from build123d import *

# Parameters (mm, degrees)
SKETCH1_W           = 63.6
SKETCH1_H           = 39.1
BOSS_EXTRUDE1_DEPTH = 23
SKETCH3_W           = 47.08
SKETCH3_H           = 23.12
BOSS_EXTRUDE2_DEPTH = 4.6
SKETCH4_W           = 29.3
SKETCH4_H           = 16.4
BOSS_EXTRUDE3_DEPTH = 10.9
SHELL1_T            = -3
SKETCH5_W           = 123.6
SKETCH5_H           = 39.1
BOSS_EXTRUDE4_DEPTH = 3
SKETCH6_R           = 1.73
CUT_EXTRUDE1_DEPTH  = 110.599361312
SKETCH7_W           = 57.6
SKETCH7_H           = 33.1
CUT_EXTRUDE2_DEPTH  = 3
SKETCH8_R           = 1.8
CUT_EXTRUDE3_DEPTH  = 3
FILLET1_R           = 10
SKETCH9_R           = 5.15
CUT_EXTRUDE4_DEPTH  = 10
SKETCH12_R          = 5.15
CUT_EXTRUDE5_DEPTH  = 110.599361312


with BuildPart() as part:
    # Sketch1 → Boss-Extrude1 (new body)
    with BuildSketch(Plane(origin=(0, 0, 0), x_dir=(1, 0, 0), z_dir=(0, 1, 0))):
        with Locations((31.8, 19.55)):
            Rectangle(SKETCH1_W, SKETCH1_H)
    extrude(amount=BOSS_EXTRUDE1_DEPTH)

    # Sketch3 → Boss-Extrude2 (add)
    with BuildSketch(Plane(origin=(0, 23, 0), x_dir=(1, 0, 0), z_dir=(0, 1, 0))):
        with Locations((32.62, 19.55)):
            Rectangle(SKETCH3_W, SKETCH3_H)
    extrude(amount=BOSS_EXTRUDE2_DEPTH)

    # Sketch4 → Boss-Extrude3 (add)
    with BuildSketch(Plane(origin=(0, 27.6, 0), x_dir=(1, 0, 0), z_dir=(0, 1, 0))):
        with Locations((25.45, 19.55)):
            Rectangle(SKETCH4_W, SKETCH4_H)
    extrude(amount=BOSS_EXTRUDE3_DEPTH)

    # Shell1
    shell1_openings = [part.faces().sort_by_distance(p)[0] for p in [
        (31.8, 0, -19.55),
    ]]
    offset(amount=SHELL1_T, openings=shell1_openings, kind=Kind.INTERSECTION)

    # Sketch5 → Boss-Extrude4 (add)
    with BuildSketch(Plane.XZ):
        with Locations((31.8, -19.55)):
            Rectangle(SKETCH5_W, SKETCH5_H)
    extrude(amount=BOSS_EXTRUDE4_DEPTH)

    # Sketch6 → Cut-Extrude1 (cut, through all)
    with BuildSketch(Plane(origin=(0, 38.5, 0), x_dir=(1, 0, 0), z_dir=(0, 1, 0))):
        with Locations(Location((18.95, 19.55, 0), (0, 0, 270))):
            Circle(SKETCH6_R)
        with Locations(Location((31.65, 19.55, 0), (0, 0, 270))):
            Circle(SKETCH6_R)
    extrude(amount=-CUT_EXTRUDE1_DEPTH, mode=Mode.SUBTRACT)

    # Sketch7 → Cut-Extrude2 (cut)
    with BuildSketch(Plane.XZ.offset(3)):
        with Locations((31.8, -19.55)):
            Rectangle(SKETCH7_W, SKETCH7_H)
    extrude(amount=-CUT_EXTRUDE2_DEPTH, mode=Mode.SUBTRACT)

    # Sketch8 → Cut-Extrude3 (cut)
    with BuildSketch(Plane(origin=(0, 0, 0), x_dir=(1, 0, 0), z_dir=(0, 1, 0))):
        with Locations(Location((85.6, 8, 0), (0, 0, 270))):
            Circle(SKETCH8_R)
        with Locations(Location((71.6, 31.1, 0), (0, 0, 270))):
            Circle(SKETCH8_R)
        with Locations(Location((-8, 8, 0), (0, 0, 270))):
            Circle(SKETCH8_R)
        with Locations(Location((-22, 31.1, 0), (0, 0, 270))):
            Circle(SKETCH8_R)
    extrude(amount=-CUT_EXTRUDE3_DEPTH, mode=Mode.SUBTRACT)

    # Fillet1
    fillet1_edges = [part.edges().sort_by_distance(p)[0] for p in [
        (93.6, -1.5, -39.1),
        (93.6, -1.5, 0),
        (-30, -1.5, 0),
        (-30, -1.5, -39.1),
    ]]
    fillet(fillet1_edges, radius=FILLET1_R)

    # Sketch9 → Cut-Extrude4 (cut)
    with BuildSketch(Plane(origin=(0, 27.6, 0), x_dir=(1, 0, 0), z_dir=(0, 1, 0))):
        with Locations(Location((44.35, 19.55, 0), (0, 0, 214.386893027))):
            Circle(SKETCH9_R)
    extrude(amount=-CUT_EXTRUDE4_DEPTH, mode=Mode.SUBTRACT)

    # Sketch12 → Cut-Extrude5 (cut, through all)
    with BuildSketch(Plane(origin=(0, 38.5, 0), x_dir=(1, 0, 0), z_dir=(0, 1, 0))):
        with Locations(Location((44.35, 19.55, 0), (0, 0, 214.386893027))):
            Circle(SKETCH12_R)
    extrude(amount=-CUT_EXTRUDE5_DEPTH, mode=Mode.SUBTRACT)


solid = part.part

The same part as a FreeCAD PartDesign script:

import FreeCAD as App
import Part
import Sketcher
Q = App.Units.Quantity


def edges_at(feature, points):
    """Names of the edges that pass closest to the given points."""
    edges = feature.Shape.Edges
    near = lambda p: min(range(len(edges)), key=lambda i: edges[i].distToShape(Part.Vertex(*p))[0])
    return sorted({f"Edge{near(p) + 1}" for p in points})


def faces_at(feature, points):
    """Names of the faces that lie closest to the given points."""
    faces = feature.Shape.Faces
    near = lambda p: min(range(len(faces)), key=lambda i: faces[i].distToShape(Part.Vertex(*p))[0])
    return sorted({f"Face{near(p) + 1}" for p in points})

doc = App.newDocument("Part")
body = doc.addObject("PartDesign::Body", "Body")

# Sketch on XZ plane
sketch1 = doc.addObject("Sketcher::SketchObject", "Sketch")
body.addObject(sketch1)
sketch1.AttachmentSupport = (doc.XZ_Plane, [""])
sketch1.MapMode = "FlatFace"
sketch1.addGeometry([
    Part.LineSegment(App.Vector(0, -39.1, 0), App.Vector(0, 0, 0)),
    Part.LineSegment(App.Vector(0, 0, 0), App.Vector(63.6, 0, 0)),
    Part.LineSegment(App.Vector(63.6, 0, 0), App.Vector(63.6, -39.1, 0)),
    Part.LineSegment(App.Vector(63.6, -39.1, 0), App.Vector(0, -39.1, 0)),
], False)
sketch1.addConstraint([
    Sketcher.Constraint("Coincident", 0, 2, 1, 1),
    Sketcher.Constraint("Coincident", 1, 2, 2, 1),
    Sketcher.Constraint("Coincident", 2, 2, 3, 1),
    Sketcher.Constraint("Coincident", 3, 2, 0, 1),
    Sketcher.Constraint("Vertical", 0),
    Sketcher.Constraint("Horizontal", 1),
    Sketcher.Constraint("Vertical", 2),
    Sketcher.Constraint("Horizontal", 3),
    Sketcher.Constraint("Coincident", 0, 2, -1, 1),
    Sketcher.Constraint("DistanceX", 1, 1, 1, 2, Q("63.6 mm")),
    Sketcher.Constraint("DistanceY", 0, 1, 0, 2, Q("39.1 mm")),
])
pad1 = doc.addObject("PartDesign::Pad", "Pad")
body.addObject(pad1)
pad1.Profile = sketch1
pad1.Length = 23
pad1.Reversed = True

# Sketch on XZ plane
sketch2 = doc.addObject("Sketcher::SketchObject", "Sketch001")
body.addObject(sketch2)
sketch2.AttachmentSupport = (doc.XZ_Plane, [""])
sketch2.MapMode = "FlatFace"
sketch2.AttachmentOffset = App.Placement(App.Vector(0, 0, -23), App.Rotation())
sketch2.addGeometry([
    Part.LineSegment(App.Vector(9.08, -31.11, 0), App.Vector(9.08, -7.99, 0)),
    Part.LineSegment(App.Vector(9.08, -7.99, 0), App.Vector(56.16, -7.99, 0)),
    Part.LineSegment(App.Vector(56.16, -7.99, 0), App.Vector(56.16, -31.11, 0)),
    Part.LineSegment(App.Vector(56.16, -31.11, 0), App.Vector(9.08, -31.11, 0)),
], False)
sketch2.addConstraint([
    Sketcher.Constraint("Coincident", 0, 2, 1, 1),
    Sketcher.Constraint("Coincident", 1, 2, 2, 1),
    Sketcher.Constraint("Coincident", 2, 2, 3, 1),
    Sketcher.Constraint("Coincident", 3, 2, 0, 1),
    Sketcher.Constraint("Vertical", 0),
    Sketcher.Constraint("Horizontal", 1),
    Sketcher.Constraint("Vertical", 2),
    Sketcher.Constraint("Horizontal", 3),
    Sketcher.Constraint("DistanceX", 1, 1, 1, 2, Q("47.08 mm")),
    Sketcher.Constraint("DistanceY", 0, 1, 0, 2, Q("23.12 mm")),
    Sketcher.Constraint("DistanceX", -1, 1, 0, 2, Q("9.08 mm")),
    Sketcher.Constraint("DistanceY", 0, 2, -1, 1, Q("7.99 mm")),
])
pad2 = doc.addObject("PartDesign::Pad", "Pad001")
body.addObject(pad2)
pad2.Profile = sketch2
pad2.Length = 4.6
pad2.Reversed = True

# Sketch on XZ plane
sketch3 = doc.addObject("Sketcher::SketchObject", "Sketch002")
body.addObject(sketch3)
sketch3.AttachmentSupport = (doc.XZ_Plane, [""])
sketch3.MapMode = "FlatFace"
sketch3.AttachmentOffset = App.Placement(App.Vector(0, 0, -27.6), App.Rotation())
sketch3.addGeometry([
    Part.LineSegment(App.Vector(10.8, -27.75, 0), App.Vector(10.8, -11.35, 0)),
    Part.LineSegment(App.Vector(10.8, -11.35, 0), App.Vector(40.1, -11.35, 0)),
    Part.LineSegment(App.Vector(40.1, -11.35, 0), App.Vector(40.1, -27.75, 0)),
    Part.LineSegment(App.Vector(40.1, -27.75, 0), App.Vector(10.8, -27.75, 0)),
], False)
sketch3.addConstraint([
    Sketcher.Constraint("Coincident", 0, 2, 1, 1),
    Sketcher.Constraint("Coincident", 1, 2, 2, 1),
    Sketcher.Constraint("Coincident", 2, 2, 3, 1),
    Sketcher.Constraint("Coincident", 3, 2, 0, 1),
    Sketcher.Constraint("Vertical", 0),
    Sketcher.Constraint("Horizontal", 1),
    Sketcher.Constraint("Vertical", 2),
    Sketcher.Constraint("Horizontal", 3),
    Sketcher.Constraint("DistanceX", 1, 1, 1, 2, Q("29.3 mm")),
    Sketcher.Constraint("DistanceY", 0, 1, 0, 2, Q("16.4 mm")),
    Sketcher.Constraint("DistanceX", -1, 1, 0, 2, Q("10.8 mm")),
    Sketcher.Constraint("DistanceY", 0, 2, -1, 1, Q("11.35 mm")),
])
pad3 = doc.addObject("PartDesign::Pad", "Pad002")
body.addObject(pad3)
pad3.Profile = sketch3
pad3.Length = 10.9
pad3.Reversed = True
doc.recompute()

thickness = doc.addObject("PartDesign::Thickness", "Thickness")
body.addObject(thickness)
thickness.Base = (pad3, faces_at(pad3, [(31.8, 0, -19.55)]))
thickness.Value = 3
thickness.Reversed = True
thickness.Join = "Intersection"

# Sketch on XZ plane
sketch4 = doc.addObject("Sketcher::SketchObject", "Sketch003")
body.addObject(sketch4)
sketch4.AttachmentSupport = (doc.XZ_Plane, [""])
sketch4.MapMode = "FlatFace"
sketch4.addGeometry([
    Part.LineSegment(App.Vector(-30, 0, 0), App.Vector(-30, -39.1, 0)),
    Part.LineSegment(App.Vector(-30, -39.1, 0), App.Vector(93.6, -39.1, 0)),
    Part.LineSegment(App.Vector(93.6, -39.1, 0), App.Vector(93.6, 0, 0)),
    Part.LineSegment(App.Vector(93.6, 0, 0), App.Vector(-30, 0, 0)),
], False)
sketch4.addConstraint([
    Sketcher.Constraint("Coincident", 0, 2, 1, 1),
    Sketcher.Constraint("Coincident", 1, 2, 2, 1),
    Sketcher.Constraint("Coincident", 2, 2, 3, 1),
    Sketcher.Constraint("Coincident", 3, 2, 0, 1),
    Sketcher.Constraint("Vertical", 0),
    Sketcher.Constraint("Horizontal", 1),
    Sketcher.Constraint("Vertical", 2),
    Sketcher.Constraint("Horizontal", 3),
    Sketcher.Constraint("PointOnObject", 2, 2, -1),
    Sketcher.Constraint("DistanceX", 1, 1, 1, 2, Q("123.6 mm")),
    Sketcher.Constraint("DistanceY", 0, 2, 0, 1, Q("39.1 mm")),
    Sketcher.Constraint("DistanceX", 0, 2, -1, 1, Q("30 mm")),
])
pad4 = doc.addObject("PartDesign::Pad", "Pad003")
body.addObject(pad4)
pad4.Profile = sketch4
pad4.Length = 3

# Sketch on XZ plane
sketch5 = doc.addObject("Sketcher::SketchObject", "Sketch004")
body.addObject(sketch5)
sketch5.AttachmentSupport = (doc.XZ_Plane, [""])
sketch5.MapMode = "FlatFace"
sketch5.AttachmentOffset = App.Placement(App.Vector(0, 0, -38.5), App.Rotation())
sketch5.addGeometry([
    Part.Circle(App.Vector(18.95, -19.55, 0), App.Vector(0, 0, 1), 1.73),
    Part.Circle(App.Vector(31.65, -19.55, 0), App.Vector(0, 0, 1), 1.73),
], False)
sketch5.addConstraint([
    Sketcher.Constraint("Equal", 0, 1),
    Sketcher.Constraint("Horizontal", 0, 3, 1, 3),
    Sketcher.Constraint("Diameter", 0, Q("3.46 mm")),
    Sketcher.Constraint("DistanceX", 0, 3, 1, 3, Q("12.7 mm")),
    Sketcher.Constraint("DistanceX", -1, 1, 0, 3, Q("18.95 mm")),
    Sketcher.Constraint("DistanceY", 0, 3, -1, 1, Q("19.55 mm")),
])
pocket1 = doc.addObject("PartDesign::Pocket", "Pocket")
body.addObject(pocket1)
pocket1.Profile = sketch5
pocket1.Type = "ThroughAll"
pocket1.Reversed = True

# Sketch on XZ plane
sketch6 = doc.addObject("Sketcher::SketchObject", "Sketch005")
body.addObject(sketch6)
sketch6.AttachmentSupport = (doc.XZ_Plane, [""])
sketch6.MapMode = "FlatFace"
sketch6.AttachmentOffset = App.Placement(App.Vector(0, 0, 3), App.Rotation())
sketch6.addGeometry([
    Part.LineSegment(App.Vector(3, -3, 0), App.Vector(3, -36.1, 0)),
    Part.LineSegment(App.Vector(3, -36.1, 0), App.Vector(60.6, -36.1, 0)),
    Part.LineSegment(App.Vector(60.6, -36.1, 0), App.Vector(60.6, -3, 0)),
    Part.LineSegment(App.Vector(60.6, -3, 0), App.Vector(3, -3, 0)),
], False)
sketch6.addConstraint([
    Sketcher.Constraint("Coincident", 0, 2, 1, 1),
    Sketcher.Constraint("Coincident", 1, 2, 2, 1),
    Sketcher.Constraint("Coincident", 2, 2, 3, 1),
    Sketcher.Constraint("Coincident", 3, 2, 0, 1),
    Sketcher.Constraint("Vertical", 0),
    Sketcher.Constraint("Horizontal", 1),
    Sketcher.Constraint("Vertical", 2),
    Sketcher.Constraint("Horizontal", 3),
    Sketcher.Constraint("DistanceX", 1, 1, 1, 2, Q("57.6 mm")),
    Sketcher.Constraint("DistanceY", 0, 2, 0, 1, Q("33.1 mm")),
    Sketcher.Constraint("DistanceX", -1, 1, 0, 2, Q("3 mm")),
    Sketcher.Constraint("DistanceY", 2, 2, -1, 1, Q("3 mm")),
])
pocket2 = doc.addObject("PartDesign::Pocket", "Pocket001")
body.addObject(pocket2)
pocket2.Profile = sketch6
pocket2.Length = 3

# Sketch on XZ plane
sketch7 = doc.addObject("Sketcher::SketchObject", "Sketch006")
body.addObject(sketch7)
sketch7.AttachmentSupport = (doc.XZ_Plane, [""])
sketch7.MapMode = "FlatFace"
sketch7.addGeometry([
    Part.Circle(App.Vector(85.6, -8, 0), App.Vector(0, 0, 1), 1.8),
    Part.Circle(App.Vector(71.6, -31.1, 0), App.Vector(0, 0, 1), 1.8),
    Part.Circle(App.Vector(-8, -8, 0), App.Vector(0, 0, 1), 1.8),
    Part.Circle(App.Vector(-22, -31.1, 0), App.Vector(0, 0, 1), 1.8),
], False)
sketch7.addConstraint([
    Sketcher.Constraint("Equal", 0, 1),
    Sketcher.Constraint("Equal", 1, 2),
    Sketcher.Constraint("Equal", 2, 3),
    Sketcher.Constraint("Horizontal", 0, 3, 2, 3),
    Sketcher.Constraint("Horizontal", 1, 3, 3, 3),
    Sketcher.Constraint("Diameter", 0, Q("3.6 mm")),
    Sketcher.Constraint("DistanceY", 0, 3, -1, 1, Q("8 mm")),
    Sketcher.Constraint("DistanceX", 2, 3, -1, 1, Q("8 mm")),
    Sketcher.Constraint("DistanceX", 3, 3, -1, 1, Q("22 mm")),
    Sketcher.Constraint("DistanceX", 1, 3, 0, 3, Q("14 mm")),
    Sketcher.Constraint("DistanceX", -1, 1, 0, 3, Q("85.6 mm")),
    Sketcher.Constraint("DistanceY", 1, 3, -1, 1, Q("31.1 mm")),
])
pocket3 = doc.addObject("PartDesign::Pocket", "Pocket002")
body.addObject(pocket3)
pocket3.Profile = sketch7
pocket3.Length = 3
pocket3.Reversed = True
doc.recompute()

fillet = doc.addObject("PartDesign::Fillet", "Fillet")
body.addObject(fillet)
fillet.Base = (pocket3, edges_at(pocket3, [
    (93.6, -1.5, -39.1),
    (93.6, -1.5, 0),
    (-30, -1.5, 0),
    (-30, -1.5, -39.1),
]))
fillet.Radius = 10

# Sketch on XZ plane
sketch8 = doc.addObject("Sketcher::SketchObject", "Sketch007")
body.addObject(sketch8)
sketch8.AttachmentSupport = (doc.XZ_Plane, [""])
sketch8.MapMode = "FlatFace"
sketch8.AttachmentOffset = App.Placement(App.Vector(0, 0, -27.6), App.Rotation())
sketch8.addGeometry(Part.Circle(App.Vector(44.35, -19.55, 0), App.Vector(0, 0, 1), 5.15), False)
sketch8.addConstraint([
    Sketcher.Constraint("Diameter", 0, Q("10.3 mm")),
    Sketcher.Constraint("DistanceX", -1, 1, 0, 3, Q("44.35 mm")),
    Sketcher.Constraint("DistanceY", 0, 3, -1, 1, Q("19.55 mm")),
])
pocket4 = doc.addObject("PartDesign::Pocket", "Pocket003")
body.addObject(pocket4)
pocket4.Profile = sketch8
pocket4.Length = 10
pocket4.Reversed = True

# Sketch on XZ plane
sketch9 = doc.addObject("Sketcher::SketchObject", "Sketch008")
body.addObject(sketch9)
sketch9.AttachmentSupport = (doc.XZ_Plane, [""])
sketch9.MapMode = "FlatFace"
sketch9.AttachmentOffset = App.Placement(App.Vector(0, 0, -38.5), App.Rotation())
sketch9.addGeometry(Part.Circle(App.Vector(44.35, -19.55, 0), App.Vector(0, 0, 1), 5.15), False)
sketch9.addConstraint([
    Sketcher.Constraint("Diameter", 0, Q("10.3 mm")),
    Sketcher.Constraint("DistanceX", -1, 1, 0, 3, Q("44.35 mm")),
    Sketcher.Constraint("DistanceY", 0, 3, -1, 1, Q("19.55 mm")),
])
pocket5 = doc.addObject("PartDesign::Pocket", "Pocket004")
body.addObject(pocket5)
pocket5.Profile = sketch9
pocket5.Type = "ThroughAll"
pocket5.Reversed = True

doc.recompute()
